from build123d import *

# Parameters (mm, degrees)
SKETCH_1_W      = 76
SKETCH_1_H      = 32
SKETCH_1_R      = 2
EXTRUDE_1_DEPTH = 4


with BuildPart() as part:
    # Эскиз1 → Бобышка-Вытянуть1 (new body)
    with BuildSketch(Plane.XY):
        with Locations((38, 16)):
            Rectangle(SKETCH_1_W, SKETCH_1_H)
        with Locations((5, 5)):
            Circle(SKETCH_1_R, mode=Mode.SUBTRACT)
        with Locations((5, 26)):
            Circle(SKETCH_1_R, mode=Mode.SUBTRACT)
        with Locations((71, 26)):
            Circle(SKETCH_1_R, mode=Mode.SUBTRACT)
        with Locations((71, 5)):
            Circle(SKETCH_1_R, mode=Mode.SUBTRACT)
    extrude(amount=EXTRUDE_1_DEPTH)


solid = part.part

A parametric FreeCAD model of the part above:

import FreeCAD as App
import Part
import Sketcher

V = App.Vector


def add_polygon(sketch, points):
    """Adds a closed chain of lines whose ends are joined by coincident constraints."""
    first, n = sketch.GeometryCount, len(points)
    for a, b in zip(points, points[1:] + points[:1]):
        sketch.addGeometry(Part.LineSegment(App.Vector(*a, 0), App.Vector(*b, 0)), False)
    for i in range(n):
        sketch.addConstraint(Sketcher.Constraint("Coincident", first + i, 2, first + (i + 1) % n, 1))

doc = App.newDocument("Part")
params = doc.addObject("Spreadsheet::Sheet", "Params")
for row, (alias, value) in enumerate([
    ("sketch1_diameter", "4 mm"),
    ("sketch1_width", "76 mm"),
    ("sketch1_height", "32 mm"),
    ("pad1_length", "4 mm"),
], start=1):
    params.set(f"A{row}", alias)
    params.set(f"B{row}", "=" + value)
    params.setAlias(f"B{row}", alias)

body = doc.addObject("PartDesign::Body", "Body")

# Sketch on XY plane
sketch1 = doc.addObject("Sketcher::SketchObject", "Sketch")
body.addObject(sketch1)
sketch1.AttachmentSupport = (doc.XY_Plane, [""])
sketch1.MapMode = "FlatFace"
add_polygon(sketch1, [(0, 32), (0, 0), (76, 0), (76, 32)])  # lines 0-3
sketch1.addGeometry(Part.Circle(V(5, 5, 0), V(0, 0, 1), 2), False)  # 4
sketch1.addGeometry(Part.Circle(V(71, 5, 0), V(0, 0, 1), 2), False)  # 5
sketch1.addGeometry(Part.Circle(V(5, 26, 0), V(0, 0, 1), 2), False)  # 6
sketch1.addGeometry(Part.Circle(V(71, 26, 0), V(0, 0, 1), 2), False)  # 7
sketch1.addConstraint([
    Sketcher.Constraint("Vertical", 0),
    Sketcher.Constraint("Horizontal", 1),
    Sketcher.Constraint("Vertical", 2),
    Sketcher.Constraint("Horizontal", 3),
    Sketcher.Constraint("Coincident", 0, 2, -1, 1),
    Sketcher.Constraint("Equal", 4, 5),
    Sketcher.Constraint("Equal", 5, 6),
    Sketcher.Constraint("Equal", 6, 7),
    Sketcher.Constraint("Horizontal", 4, 3, 5, 3),
    Sketcher.Constraint("Horizontal", 6, 3, 7, 3),
    Sketcher.Constraint("Vertical", 4, 3, 6, 3),
    Sketcher.Constraint("Vertical", 5, 3, 7, 3),
    Sketcher.Constraint("Diameter", 4, 4.0),
    Sketcher.Constraint("DistanceX", 1, 1, 1, 2, 76.0),
    Sketcher.Constraint("DistanceY", 0, 2, 0, 1, 32.0),
    Sketcher.Constraint("DistanceX", -1, 1, 4, 3, 5.0),
    Sketcher.Constraint("DistanceY", -1, 1, 4, 3, 5.0),
    Sketcher.Constraint("DistanceX", -1, 1, 5, 3, 71.0),
    Sketcher.Constraint("DistanceY", -1, 1, 6, 3, 26.0),
])
sketch1.setExpression("Constraints[16]", "Params.sketch1_diameter")
sketch1.setExpression("Constraints[17]", "Params.sketch1_width")
sketch1.setExpression("Constraints[18]", "Params.sketch1_height")
pad1 = doc.addObject("PartDesign::Pad", "Pad")
body.addObject(pad1)
pad1.Profile = sketch1
pad1.setExpression("Length", "Params.pad1_length")

doc.recompute()
